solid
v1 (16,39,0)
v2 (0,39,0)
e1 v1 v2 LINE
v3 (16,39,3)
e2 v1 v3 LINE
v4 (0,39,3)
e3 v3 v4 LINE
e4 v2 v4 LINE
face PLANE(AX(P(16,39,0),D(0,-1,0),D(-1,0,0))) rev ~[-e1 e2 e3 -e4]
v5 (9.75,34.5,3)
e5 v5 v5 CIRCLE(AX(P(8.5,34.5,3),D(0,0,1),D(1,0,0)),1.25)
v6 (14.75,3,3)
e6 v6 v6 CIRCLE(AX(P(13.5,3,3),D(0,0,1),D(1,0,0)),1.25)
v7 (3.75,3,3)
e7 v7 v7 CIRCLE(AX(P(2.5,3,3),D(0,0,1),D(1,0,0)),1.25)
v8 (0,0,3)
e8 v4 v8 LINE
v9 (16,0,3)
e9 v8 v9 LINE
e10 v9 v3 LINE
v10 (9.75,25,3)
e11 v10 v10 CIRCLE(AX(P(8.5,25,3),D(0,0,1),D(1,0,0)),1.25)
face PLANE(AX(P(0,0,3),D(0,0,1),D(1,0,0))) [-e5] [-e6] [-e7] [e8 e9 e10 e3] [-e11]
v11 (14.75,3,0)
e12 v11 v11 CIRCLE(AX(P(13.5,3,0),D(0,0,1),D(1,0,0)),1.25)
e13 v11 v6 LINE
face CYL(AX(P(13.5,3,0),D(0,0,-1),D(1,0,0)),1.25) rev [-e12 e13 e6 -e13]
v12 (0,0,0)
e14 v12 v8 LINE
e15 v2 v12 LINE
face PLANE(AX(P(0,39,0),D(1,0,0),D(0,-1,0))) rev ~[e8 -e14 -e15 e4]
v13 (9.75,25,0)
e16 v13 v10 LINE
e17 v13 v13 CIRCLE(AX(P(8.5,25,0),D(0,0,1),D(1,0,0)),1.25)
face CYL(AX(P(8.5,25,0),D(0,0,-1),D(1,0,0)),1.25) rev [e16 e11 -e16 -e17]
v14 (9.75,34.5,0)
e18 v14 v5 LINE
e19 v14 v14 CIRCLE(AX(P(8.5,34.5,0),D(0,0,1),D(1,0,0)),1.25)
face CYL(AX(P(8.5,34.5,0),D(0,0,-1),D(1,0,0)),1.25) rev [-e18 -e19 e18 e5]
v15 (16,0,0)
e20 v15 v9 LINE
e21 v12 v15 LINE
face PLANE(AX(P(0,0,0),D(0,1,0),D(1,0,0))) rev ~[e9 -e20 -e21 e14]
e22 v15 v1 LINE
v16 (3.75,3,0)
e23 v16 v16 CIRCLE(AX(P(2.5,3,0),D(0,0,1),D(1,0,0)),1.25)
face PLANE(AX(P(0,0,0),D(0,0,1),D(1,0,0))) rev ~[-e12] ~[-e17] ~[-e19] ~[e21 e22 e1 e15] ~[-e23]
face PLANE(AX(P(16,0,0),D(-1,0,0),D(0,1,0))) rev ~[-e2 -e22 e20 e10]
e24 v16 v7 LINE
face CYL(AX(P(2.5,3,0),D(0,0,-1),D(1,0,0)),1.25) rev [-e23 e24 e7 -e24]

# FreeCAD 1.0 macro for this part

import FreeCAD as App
import Part
import Sketcher
Q = App.Units.Quantity

doc = App.newDocument("Part")
body = doc.addObject("PartDesign::Body", "Body")

# Sketch on XY plane
sketch1 = body.newObject("Sketcher::SketchObject", "Sketch")
sketch1.AttachmentSupport = (doc.getObject("XY_Plane"), [""])
sketch1.MapMode = "FlatFace"
sketch1.addGeometry([
    Part.LineSegment(App.Vector(0, 39, 0), App.Vector(0, 0, 0)),  # 0
    Part.LineSegment(App.Vector(0, 0, 0), App.Vector(16, 0, 0)),  # 1
    Part.LineSegment(App.Vector(16, 0, 0), App.Vector(16, 39, 0)),  # 2
    Part.LineSegment(App.Vector(16, 39, 0), App.Vector(0, 39, 0)),  # 3
    Part.Circle(App.Vector(2.5, 3, 0), App.Vector(0, 0, 1), 1.2),  # 4
    Part.Circle(App.Vector(13.5, 3, 0), App.Vector(0, 0, 1), 1.2),  # 5
    Part.Circle(App.Vector(8.5, 25, 0), App.Vector(0, 0, 1), 1.2),  # 6
    Part.Circle(App.Vector(8.5, 34.5, 0), App.Vector(0, 0, 1), 1.2),  # 7
], False)
sketch1.addConstraint([
    Sketcher.Constraint("Coincident", 0, 2, 1, 1),
    Sketcher.Constraint("Coincident", 1, 2, 2, 1),
    Sketcher.Constraint("Coincident", 2, 2, 3, 1),
    Sketcher.Constraint("Coincident", 3, 2, 0, 1),
    Sketcher.Constraint("Vertical", 0),
    Sketcher.Constraint("Horizontal", 1),
    Sketcher.Constraint("Vertical", 2),
    Sketcher.Constraint("Horizontal", 3),
    Sketcher.Constraint("Coincident", 0, 2, -1, 1),
    Sketcher.Constraint("Equal", 4, 5),
    Sketcher.Constraint("Equal", 5, 6),
    Sketcher.Constraint("Equal", 6, 7),
    Sketcher.Constraint("Horizontal", 4, 3, 5, 3),
    Sketcher.Constraint("Vertical", 6, 3, 7, 3),
    Sketcher.Constraint("Diameter", 4, Q("2.5 mm")),
    Sketcher.Constraint("DistanceX", 1, 1, 1, 2, Q("16 mm")),
    Sketcher.Constraint("DistanceY", 0, 2, 0, 1, Q("39 mm")),
    Sketcher.Constraint("DistanceY", -1, 1, 4, 3, Q("3 mm")),
    Sketcher.Constraint("DistanceY", -1, 1, 6, 3, Q("25 mm")),
    Sketcher.Constraint("DistanceX", 4, 3, 5, 3, Q("11 mm")),
    Sketcher.Constraint("DistanceX", -1, 1, 4, 3, Q("2.5 mm")),
    Sketcher.Constraint("DistanceY", 6, 3, 7, 3, Q("9.5 mm")),
    Sketcher.Constraint("DistanceX", 6, 3, 1, 2, Q("7.5 mm")),
])
pad1 = body.newObject("PartDesign::Pad", "Pad")
pad1.Profile = sketch1
pad1.Length = 3

doc.recompute()
